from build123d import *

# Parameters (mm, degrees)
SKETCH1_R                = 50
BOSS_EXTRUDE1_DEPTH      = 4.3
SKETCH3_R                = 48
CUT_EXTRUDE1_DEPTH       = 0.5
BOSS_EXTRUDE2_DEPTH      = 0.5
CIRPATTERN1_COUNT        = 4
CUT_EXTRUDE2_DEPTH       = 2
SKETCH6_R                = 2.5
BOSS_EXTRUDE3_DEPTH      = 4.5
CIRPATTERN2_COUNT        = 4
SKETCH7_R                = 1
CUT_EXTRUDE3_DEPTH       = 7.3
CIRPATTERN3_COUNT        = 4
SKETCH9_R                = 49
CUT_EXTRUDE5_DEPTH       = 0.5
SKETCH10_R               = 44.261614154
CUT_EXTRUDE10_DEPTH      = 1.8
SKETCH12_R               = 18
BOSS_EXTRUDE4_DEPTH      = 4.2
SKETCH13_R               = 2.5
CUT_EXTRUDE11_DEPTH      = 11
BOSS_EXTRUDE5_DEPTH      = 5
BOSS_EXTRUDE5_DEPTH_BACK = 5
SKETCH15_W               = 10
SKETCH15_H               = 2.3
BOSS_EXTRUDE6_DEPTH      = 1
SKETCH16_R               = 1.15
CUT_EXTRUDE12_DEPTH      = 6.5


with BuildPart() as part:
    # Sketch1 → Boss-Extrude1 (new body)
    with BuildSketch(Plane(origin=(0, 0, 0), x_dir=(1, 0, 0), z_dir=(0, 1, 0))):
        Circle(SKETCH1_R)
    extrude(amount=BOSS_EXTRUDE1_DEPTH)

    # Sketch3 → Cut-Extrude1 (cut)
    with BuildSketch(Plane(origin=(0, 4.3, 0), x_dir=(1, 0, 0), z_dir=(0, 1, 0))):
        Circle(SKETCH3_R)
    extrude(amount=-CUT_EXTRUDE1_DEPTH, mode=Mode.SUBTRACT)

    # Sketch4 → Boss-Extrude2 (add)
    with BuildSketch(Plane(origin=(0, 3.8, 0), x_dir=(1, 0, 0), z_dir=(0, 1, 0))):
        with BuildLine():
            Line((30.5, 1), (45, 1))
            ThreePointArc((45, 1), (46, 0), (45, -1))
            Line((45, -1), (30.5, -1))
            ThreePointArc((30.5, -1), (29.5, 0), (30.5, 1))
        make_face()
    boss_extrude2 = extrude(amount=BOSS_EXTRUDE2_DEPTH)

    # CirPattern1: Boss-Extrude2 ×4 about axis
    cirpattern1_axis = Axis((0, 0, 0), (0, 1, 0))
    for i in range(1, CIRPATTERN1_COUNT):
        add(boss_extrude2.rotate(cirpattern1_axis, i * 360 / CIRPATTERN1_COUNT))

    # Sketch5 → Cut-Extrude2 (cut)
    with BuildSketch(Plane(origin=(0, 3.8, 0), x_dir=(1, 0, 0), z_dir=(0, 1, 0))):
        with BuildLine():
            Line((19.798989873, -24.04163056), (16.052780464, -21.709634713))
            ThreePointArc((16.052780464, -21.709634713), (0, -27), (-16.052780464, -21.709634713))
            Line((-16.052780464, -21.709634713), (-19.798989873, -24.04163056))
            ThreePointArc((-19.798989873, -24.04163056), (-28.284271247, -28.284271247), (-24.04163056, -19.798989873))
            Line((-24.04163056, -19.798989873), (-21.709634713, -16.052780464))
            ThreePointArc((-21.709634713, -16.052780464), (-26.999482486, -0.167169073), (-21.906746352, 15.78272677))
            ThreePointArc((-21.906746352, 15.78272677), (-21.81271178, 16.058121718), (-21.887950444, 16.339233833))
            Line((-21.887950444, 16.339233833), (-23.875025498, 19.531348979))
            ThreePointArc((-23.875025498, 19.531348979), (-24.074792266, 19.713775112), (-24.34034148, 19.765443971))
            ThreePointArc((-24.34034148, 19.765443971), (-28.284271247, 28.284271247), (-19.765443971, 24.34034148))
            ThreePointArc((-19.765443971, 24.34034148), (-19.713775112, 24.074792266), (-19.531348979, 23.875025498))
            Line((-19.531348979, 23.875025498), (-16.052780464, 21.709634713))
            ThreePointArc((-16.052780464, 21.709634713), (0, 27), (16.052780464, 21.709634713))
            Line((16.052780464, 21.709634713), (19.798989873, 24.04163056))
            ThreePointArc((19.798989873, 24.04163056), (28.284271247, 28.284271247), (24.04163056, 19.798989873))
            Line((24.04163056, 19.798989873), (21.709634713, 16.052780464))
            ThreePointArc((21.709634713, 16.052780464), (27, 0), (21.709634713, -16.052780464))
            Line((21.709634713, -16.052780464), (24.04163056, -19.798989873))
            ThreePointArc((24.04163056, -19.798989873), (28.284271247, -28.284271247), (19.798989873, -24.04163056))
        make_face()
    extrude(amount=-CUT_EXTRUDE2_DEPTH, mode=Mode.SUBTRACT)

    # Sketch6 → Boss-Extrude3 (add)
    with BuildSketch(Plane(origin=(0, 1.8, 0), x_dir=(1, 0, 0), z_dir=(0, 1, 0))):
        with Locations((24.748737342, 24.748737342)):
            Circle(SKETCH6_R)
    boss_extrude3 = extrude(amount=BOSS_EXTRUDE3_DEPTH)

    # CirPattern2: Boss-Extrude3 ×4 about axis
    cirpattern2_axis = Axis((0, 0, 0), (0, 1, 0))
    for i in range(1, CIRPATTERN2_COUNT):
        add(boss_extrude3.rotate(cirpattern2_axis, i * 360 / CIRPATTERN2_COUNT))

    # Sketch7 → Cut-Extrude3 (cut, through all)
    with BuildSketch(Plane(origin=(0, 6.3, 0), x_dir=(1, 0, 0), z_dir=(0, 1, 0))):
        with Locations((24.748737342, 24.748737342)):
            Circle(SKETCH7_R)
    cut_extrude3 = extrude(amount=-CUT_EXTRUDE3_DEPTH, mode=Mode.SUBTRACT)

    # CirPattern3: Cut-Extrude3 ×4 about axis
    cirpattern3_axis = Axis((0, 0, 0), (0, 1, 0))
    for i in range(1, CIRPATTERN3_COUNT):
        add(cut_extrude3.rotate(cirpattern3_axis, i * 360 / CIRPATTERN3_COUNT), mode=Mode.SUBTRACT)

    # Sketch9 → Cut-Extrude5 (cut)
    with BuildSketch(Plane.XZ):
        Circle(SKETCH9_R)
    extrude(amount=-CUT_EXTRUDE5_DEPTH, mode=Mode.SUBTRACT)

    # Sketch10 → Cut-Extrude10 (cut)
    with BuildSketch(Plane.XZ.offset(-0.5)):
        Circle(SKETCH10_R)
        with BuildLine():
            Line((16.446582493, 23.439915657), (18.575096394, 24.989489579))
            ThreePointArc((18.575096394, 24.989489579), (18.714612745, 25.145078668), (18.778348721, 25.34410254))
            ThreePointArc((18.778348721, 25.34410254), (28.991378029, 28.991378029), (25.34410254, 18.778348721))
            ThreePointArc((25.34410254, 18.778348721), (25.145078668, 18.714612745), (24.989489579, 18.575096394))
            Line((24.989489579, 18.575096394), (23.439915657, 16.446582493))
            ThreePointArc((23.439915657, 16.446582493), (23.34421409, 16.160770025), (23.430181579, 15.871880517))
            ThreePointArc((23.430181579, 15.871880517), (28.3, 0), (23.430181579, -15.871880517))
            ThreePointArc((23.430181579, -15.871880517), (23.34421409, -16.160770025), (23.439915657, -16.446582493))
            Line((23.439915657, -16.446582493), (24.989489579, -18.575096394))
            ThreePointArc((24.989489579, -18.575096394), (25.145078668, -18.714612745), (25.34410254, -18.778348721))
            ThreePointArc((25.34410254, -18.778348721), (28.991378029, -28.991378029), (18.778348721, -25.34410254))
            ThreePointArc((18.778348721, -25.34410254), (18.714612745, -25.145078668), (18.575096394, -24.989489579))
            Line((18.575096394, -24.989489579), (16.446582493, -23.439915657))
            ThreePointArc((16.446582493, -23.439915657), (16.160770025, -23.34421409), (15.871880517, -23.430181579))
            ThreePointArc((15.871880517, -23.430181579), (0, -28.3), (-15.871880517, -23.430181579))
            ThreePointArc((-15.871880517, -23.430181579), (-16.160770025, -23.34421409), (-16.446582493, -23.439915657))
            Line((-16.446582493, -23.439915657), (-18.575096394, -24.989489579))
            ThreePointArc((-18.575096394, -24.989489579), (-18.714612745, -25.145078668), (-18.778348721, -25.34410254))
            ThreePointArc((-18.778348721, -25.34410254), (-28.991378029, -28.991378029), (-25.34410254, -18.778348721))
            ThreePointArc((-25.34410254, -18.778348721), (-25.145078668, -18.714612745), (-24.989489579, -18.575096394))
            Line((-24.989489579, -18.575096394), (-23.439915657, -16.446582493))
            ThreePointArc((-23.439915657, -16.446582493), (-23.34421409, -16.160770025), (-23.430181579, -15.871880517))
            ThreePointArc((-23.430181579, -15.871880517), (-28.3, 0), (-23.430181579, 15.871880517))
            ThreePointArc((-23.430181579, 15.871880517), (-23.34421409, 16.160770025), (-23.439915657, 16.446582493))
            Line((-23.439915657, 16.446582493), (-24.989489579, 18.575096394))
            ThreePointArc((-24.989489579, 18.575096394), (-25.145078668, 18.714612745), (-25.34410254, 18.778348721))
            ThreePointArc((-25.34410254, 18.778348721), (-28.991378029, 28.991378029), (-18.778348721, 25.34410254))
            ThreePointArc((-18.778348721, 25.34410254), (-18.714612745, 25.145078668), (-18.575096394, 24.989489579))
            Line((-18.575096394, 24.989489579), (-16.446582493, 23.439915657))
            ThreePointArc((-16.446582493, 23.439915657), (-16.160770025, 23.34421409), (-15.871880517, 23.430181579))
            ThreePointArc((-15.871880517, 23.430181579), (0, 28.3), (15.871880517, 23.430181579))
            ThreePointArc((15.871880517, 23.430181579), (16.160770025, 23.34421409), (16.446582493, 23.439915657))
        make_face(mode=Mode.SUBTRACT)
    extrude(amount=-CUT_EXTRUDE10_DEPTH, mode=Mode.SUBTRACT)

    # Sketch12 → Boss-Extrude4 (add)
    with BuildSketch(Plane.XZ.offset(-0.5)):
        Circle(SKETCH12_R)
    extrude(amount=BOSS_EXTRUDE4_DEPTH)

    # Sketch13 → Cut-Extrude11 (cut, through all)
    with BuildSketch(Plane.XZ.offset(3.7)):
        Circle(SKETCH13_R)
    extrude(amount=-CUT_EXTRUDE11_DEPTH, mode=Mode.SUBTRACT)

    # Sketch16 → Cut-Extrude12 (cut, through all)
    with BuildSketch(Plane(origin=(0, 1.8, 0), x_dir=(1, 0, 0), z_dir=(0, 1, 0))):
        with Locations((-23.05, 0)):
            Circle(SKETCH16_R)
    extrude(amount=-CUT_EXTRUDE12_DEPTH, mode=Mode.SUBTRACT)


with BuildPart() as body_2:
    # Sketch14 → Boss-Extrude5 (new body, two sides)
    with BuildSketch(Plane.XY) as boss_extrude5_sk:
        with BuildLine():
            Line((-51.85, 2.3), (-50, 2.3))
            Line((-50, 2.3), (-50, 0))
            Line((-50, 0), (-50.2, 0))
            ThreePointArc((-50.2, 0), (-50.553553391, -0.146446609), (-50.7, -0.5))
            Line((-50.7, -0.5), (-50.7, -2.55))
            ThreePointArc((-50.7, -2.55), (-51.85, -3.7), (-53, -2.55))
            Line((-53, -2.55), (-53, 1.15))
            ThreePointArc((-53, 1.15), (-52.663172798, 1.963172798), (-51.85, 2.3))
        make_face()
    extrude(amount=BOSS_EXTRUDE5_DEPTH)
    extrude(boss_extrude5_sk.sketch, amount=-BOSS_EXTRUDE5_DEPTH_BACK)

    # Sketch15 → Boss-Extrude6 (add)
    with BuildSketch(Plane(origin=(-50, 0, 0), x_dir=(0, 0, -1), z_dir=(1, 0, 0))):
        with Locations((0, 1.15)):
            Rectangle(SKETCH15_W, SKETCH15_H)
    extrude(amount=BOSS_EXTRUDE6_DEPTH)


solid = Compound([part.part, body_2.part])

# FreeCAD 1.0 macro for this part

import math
import FreeCAD as App
import Part
import Sketcher

V = App.Vector


def add_polygon(sketch, points):
    """Adds a closed chain of lines whose ends are joined by coincident constraints."""
    first, n = sketch.GeometryCount, len(points)
    for a, b in zip(points, points[1:] + points[:1]):
        sketch.addGeometry(Part.LineSegment(App.Vector(*a, 0), App.Vector(*b, 0)), False)
    for i in range(n):
        sketch.addConstraint(Sketcher.Constraint("Coincident", first + i, 2, first + (i + 1) % n, 1))

doc = App.newDocument("Part")
body = doc.addObject("PartDesign::Body", "Body")

# Sketch on XZ plane
sketch1 = doc.addObject("Sketcher::SketchObject", "Sketch")
body.addObject(sketch1)
sketch1.AttachmentSupport = (doc.XZ_Plane, [""])
sketch1.MapMode = "FlatFace"
sketch1.addGeometry(Part.Circle(V(0, 0, 0), V(0, 0, 1), 50), False)
sketch1.addConstraint([
    Sketcher.Constraint("Coincident", 0, 3, -1, 1),
    Sketcher.Constraint("Diameter", 0, 100.0),
])
pad1 = doc.addObject("PartDesign::Pad", "Pad")
body.addObject(pad1)
pad1.Profile = sketch1
pad1.Length = 4.3
pad1.Reversed = True

# Sketch on XZ plane
sketch2 = doc.addObject("Sketcher::SketchObject", "Sketch001")
body.addObject(sketch2)
sketch2.AttachmentSupport = (doc.XZ_Plane, [""])
sketch2.MapMode = "FlatFace"
sketch2.AttachmentOffset = App.Placement(V(0, 0, -4.3), App.Rotation())
sketch2.addGeometry(Part.Circle(V(0, 0, 0), V(0, 0, 1), 48), False)
sketch2.addConstraint([
    Sketcher.Constraint("Coincident", 0, 3, -1, 1),
    Sketcher.Constraint("Diameter", 0, 96.0),
])
pocket1 = doc.addObject("PartDesign::Pocket", "Pocket")
body.addObject(pocket1)
pocket1.Profile = sketch2
pocket1.Length = 0.5
pocket1.Reversed = True

# Sketch on XZ plane
sketch3 = doc.addObject("Sketcher::SketchObject", "Sketch002")
body.addObject(sketch3)
sketch3.AttachmentSupport = (doc.XZ_Plane, [""])
sketch3.MapMode = "FlatFace"
sketch3.AttachmentOffset = App.Placement(V(0, 0, -3.8), App.Rotation())
sketch3.addGeometry([
    Part.LineSegment(V(45, -1, 0), V(30.5, -1, 0)),
    Part.ArcOfCircle(Part.Circle(V(30.5, 0, 0), V(0, 0, 1), 1), math.radians(90), math.radians(270)),
    Part.LineSegment(V(30.5, 1, 0), V(45, 1, 0)),
    Part.ArcOfCircle(Part.Circle(V(45, 0, 0), V(0, 0, 1), 1), math.radians(-90), math.radians(90)),
], False)
sketch3.addConstraint([
    Sketcher.Constraint("Tangent", 0, 2, 1, 2),
    Sketcher.Constraint("Tangent", 1, 1, 2, 1),
    Sketcher.Constraint("Tangent", 2, 2, 3, 2),
    Sketcher.Constraint("Tangent", 3, 1, 0, 1),
    Sketcher.Constraint("Horizontal", 0),
    Sketcher.Constraint("Horizontal", 2),
    Sketcher.Constraint("PointOnObject", 1, 3, -1),
    Sketcher.Constraint("Radius", 1, 1.0),
    Sketcher.Constraint("DistanceX", 0, 2, 0, 1, 14.5),
    Sketcher.Constraint("DistanceX", -1, 1, 3, 3, 45.0),
])
pad2 = doc.addObject("PartDesign::Pad", "Pad001")
body.addObject(pad2)
pad2.Profile = sketch3
pad2.Length = 0.5
pad2.Reversed = True
doc.recompute()

polarpattern = doc.addObject("PartDesign::PolarPattern", "PolarPattern")
body.addObject(polarpattern)
polarpattern.Originals = [pad2]
polarpattern.Axis = (doc.Y_Axis, [""])
polarpattern.Angle = 360
polarpattern.Occurrences = 4
body.Tip = polarpattern

# Sketch on XZ plane
sketch4 = doc.addObject("Sketcher::SketchObject", "Sketch003")
body.addObject(sketch4)
sketch4.AttachmentSupport = (doc.XZ_Plane, [""])
sketch4.MapMode = "FlatFace"
sketch4.AttachmentOffset = App.Placement(V(0, 0, -3.8), App.Rotation())
sketch4.addGeometry([
    Part.LineSegment(V(16.05278, 21.709635, 0), V(19.79899, 24.041631, 0)),  # 0
    Part.ArcOfCircle(Part.Circle(V(24.748737, 24.748737, 0), V(0, 0, 1), 5), math.radians(-98.130102), math.radians(188.130102)),  # 1
    Part.LineSegment(V(24.041631, 19.79899, 0), V(21.709635, 16.05278, 0)),  # 2
    Part.ArcOfCircle(Part.Circle(V(0, 0, 0), V(0, 0, 1), 27), math.radians(-36.480376), math.radians(36.480376)),  # 3
    Part.LineSegment(V(21.709635, -16.05278, 0), V(24.041631, -19.79899, 0)),  # 4
    Part.ArcOfCircle(Part.Circle(V(24.748737, -24.748737, 0), V(0, 0, 1), 5), math.radians(171.869898), math.radians(458.130102)),  # 5
    Part.LineSegment(V(19.79899, -24.041631, 0), V(16.05278, -21.709635, 0)),  # 6
    Part.ArcOfCircle(Part.Circle(V(0, 0, 0), V(0, 0, 1), 27), math.radians(-126.480376), math.radians(-53.519624)),  # 7
    Part.LineSegment(V(-16.05278, -21.709635, 0), V(-19.531349, -23.875025, 0)),  # 8
    Part.ArcOfCircle(Part.Circle(V(-19.267115, -24.299502, 0), V(0, 0, 1), 0.5), math.radians(121.902049), math.radians(184.685091)),  # 9
    Part.ArcOfCircle(Part.Circle(V(-24.748737, -24.748737, 0), V(0, 0, 1), 5), math.radians(85.314909), math.radians(364.685091)),  # 10
    Part.ArcOfCircle(Part.Circle(V(-24.299502, -19.267115, 0), V(0, 0, 1), 0.5), math.radians(-94.685091), math.radians(-31.902049)),  # 11
    Part.LineSegment(V(-23.875025, -19.531349, 0), V(-21.88795, -16.339234, 0)),  # 12
    Part.ArcOfCircle(Part.Circle(V(-22.312427, -16.074999, 0), V(0, 0, 1), 0.5), math.radians(-31.902049), math.radians(35.770884)),  # 13
    Part.ArcOfCircle(Part.Circle(V(0, 0, 0), V(0, 0, 1), 27), math.radians(143.519624), math.radians(215.770884)),  # 14
    Part.LineSegment(V(-21.709635, 16.05278, 0), V(-24.041631, 19.79899, 0)),  # 15
    Part.ArcOfCircle(Part.Circle(V(-24.748737, 24.748737, 0), V(0, 0, 1), 5), math.radians(-8.130102), math.radians(278.130102)),  # 16
    Part.LineSegment(V(-19.79899, 24.041631, 0), V(-16.05278, 21.709635, 0)),  # 17
    Part.ArcOfCircle(Part.Circle(V(0, 0, 0), V(0, 0, 1), 27), math.radians(53.519624), math.radians(126.480376)),  # 18
], False)
sketch4.addConstraint([
    Sketcher.Constraint("Coincident", 0, 2, 1, 2),
    Sketcher.Constraint("Coincident", 1, 1, 2, 1),
    Sketcher.Constraint("Coincident", 2, 2, 3, 2),
    Sketcher.Constraint("Coincident", 3, 1, 4, 1),
    Sketcher.Constraint("Coincident", 4, 2, 5, 2),
    Sketcher.Constraint("Coincident", 5, 1, 6, 1),
    Sketcher.Constraint("Coincident", 6, 2, 7, 2),
    Sketcher.Constraint("Coincident", 7, 1, 8, 1),
    Sketcher.Constraint("Coincident", 8, 2, 9, 1),
    Sketcher.Constraint("Coincident", 9, 2, 10, 2),
    Sketcher.Constraint("Coincident", 10, 1, 11, 1),
    Sketcher.Constraint("Coincident", 11, 2, 12, 1),
    Sketcher.Constraint("Coincident", 12, 2, 13, 1),
    Sketcher.Constraint("Coincident", 13, 2, 14, 2),
    Sketcher.Constraint("Coincident", 14, 1, 15, 1),
    Sketcher.Constraint("Coincident", 15, 2, 16, 2),
    Sketcher.Constraint("Coincident", 16, 1, 17, 1),
    Sketcher.Constraint("Coincident", 17, 2, 18, 2),
    Sketcher.Constraint("Coincident", 18, 1, 0, 1),
    Sketcher.Constraint("Coincident", 3, 3, -1, 1),
    Sketcher.Constraint("Coincident", 7, 3, -1, 1),
    Sketcher.Constraint("Coincident", 14, 3, -1, 1),
    Sketcher.Constraint("Coincident", 18, 3, -1, 1),
    Sketcher.Constraint("Radius", 1, 5.0),
    Sketcher.Constraint("Radius", 3, 27.0),
    Sketcher.Constraint("Radius", 5, 5.0),
    Sketcher.Constraint("Radius", 7, 27.0),
    Sketcher.Constraint("Radius", 10, 5.0),
    Sketcher.Constraint("Radius", 14, 27.0),
    Sketcher.Constraint("Radius", 16, 5.0),
    Sketcher.Constraint("Radius", 18, 27.0),
    Sketcher.Constraint("Radius", 9, 0.5),
    Sketcher.Constraint("Radius", 11, 0.5),
    Sketcher.Constraint("Radius", 13, 0.5),
    Sketcher.Constraint("DistanceY", 13, 3, -1, 1, 16.074999),
    Sketcher.Constraint("DistanceY", 9, 3, -1, 1, 24.299502),
    Sketcher.Constraint("DistanceX", 11, 3, -1, 1, 24.299502),
    Sketcher.Constraint("DistanceX", 11, 2, 13, 3, 1.562599),
    Sketcher.Constraint("DistanceX", 12, 2, 8, 2, 2.356601),
    Sketcher.Constraint("Distance", 0, 4.412742),
    Sketcher.Constraint("Distance", 2, 4.412742),
    Sketcher.Constraint("Distance", 4, 4.412742),
    Sketcher.Constraint("Distance", 6, 4.412742),
    Sketcher.Constraint("Distance", 8, 4.097482),
    Sketcher.Constraint("Distance", 15, 4.412742),
    Sketcher.Constraint("Distance", 17, 4.412742),
    Sketcher.Constraint("DistanceX", -1, 1, 0, 2, 19.79899),
    Sketcher.Constraint("DistanceY", -1, 1, 0, 2, 24.041631),
    Sketcher.Constraint("DistanceX", -1, 1, 1, 1, 24.041631),
    Sketcher.Constraint("DistanceY", -1, 1, 1, 1, 19.79899),
    Sketcher.Constraint("DistanceY", 3, 1, -1, 1, 16.05278),
    Sketcher.Constraint("DistanceX", -1, 1, 4, 2, 24.041631),
    Sketcher.Constraint("DistanceX", -1, 1, 5, 1, 19.79899),
    Sketcher.Constraint("DistanceY", 5, 1, -1, 1, 24.041631),
    Sketcher.Constraint("DistanceX", 7, 1, -1, 1, 16.05278),
    Sketcher.Constraint("DistanceX", 8, 2, -1, 1, 19.531349),
    Sketcher.Constraint("DistanceY", 9, 2, -1, 1, 24.340341),
    Sketcher.Constraint("DistanceX", 10, 1, -1, 1, 24.340341),
    Sketcher.Constraint("DistanceY", 11, 2, -1, 1, 19.531349),
    Sketcher.Constraint("DistanceY", -1, 1, 14, 1, 16.05278),
    Sketcher.Constraint("DistanceX", 15, 2, -1, 1, 24.041631),
    Sketcher.Constraint("DistanceX", 16, 1, -1, 1, 19.79899),
    Sketcher.Constraint("DistanceY", -1, 1, 16, 1, 24.041631),
    Sketcher.Constraint("DistanceX", 13, 3, 13, 2, 0.40568),
])
pocket2 = doc.addObject("PartDesign::Pocket", "Pocket001")
body.addObject(pocket2)
pocket2.Profile = sketch4
pocket2.Length = 2
pocket2.Reversed = True

# Sketch on XZ plane
sketch5 = doc.addObject("Sketcher::SketchObject", "Sketch004")
body.addObject(sketch5)
sketch5.AttachmentSupport = (doc.XZ_Plane, [""])
sketch5.MapMode = "FlatFace"
sketch5.AttachmentOffset = App.Placement(V(0, 0, -1.8), App.Rotation())
sketch5.addGeometry(Part.Circle(V(24.7, -24.7, 0), V(0, 0, 1), 2.5), False)
sketch5.addConstraint([
    Sketcher.Constraint("Diameter", 0, 5.0),
    Sketcher.Constraint("DistanceX", -1, 1, 0, 3, 24.748737),
    Sketcher.Constraint("DistanceY", 0, 3, -1, 1, 24.748737),
])
pad3 = doc.addObject("PartDesign::Pad", "Pad002")
body.addObject(pad3)
pad3.Profile = sketch5
pad3.Length = 4.5
pad3.Reversed = True
doc.recompute()

polarpattern2 = doc.addObject("PartDesign::PolarPattern", "PolarPattern001")
body.addObject(polarpattern2)
polarpattern2.Originals = [pad3]
polarpattern2.Axis = (doc.Y_Axis, [""])
polarpattern2.Angle = 360
polarpattern2.Occurrences = 4
body.Tip = polarpattern2

# Sketch on XZ plane
sketch6 = doc.addObject("Sketcher::SketchObject", "Sketch005")
body.addObject(sketch6)
sketch6.AttachmentSupport = (doc.XZ_Plane, [""])
sketch6.MapMode = "FlatFace"
sketch6.AttachmentOffset = App.Placement(V(0, 0, -6.3), App.Rotation())
sketch6.addGeometry(Part.Circle(V(24.7, -24.7, 0), V(0, 0, 1), 1), False)
sketch6.addConstraint([
    Sketcher.Constraint("Diameter", 0, 2.0),
    Sketcher.Constraint("DistanceX", -1, 1, 0, 3, 24.748737),
    Sketcher.Constraint("DistanceY", 0, 3, -1, 1, 24.748737),
])
pocket3 = doc.addObject("PartDesign::Pocket", "Pocket002")
body.addObject(pocket3)
pocket3.Profile = sketch6
pocket3.Type = "ThroughAll"
pocket3.Reversed = True
doc.recompute()

polarpattern3 = doc.addObject("PartDesign::PolarPattern", "PolarPattern002")
body.addObject(polarpattern3)
polarpattern3.Originals = [pocket3]
polarpattern3.Axis = (doc.Y_Axis, [""])
polarpattern3.Angle = 360
polarpattern3.Occurrences = 4
body.Tip = polarpattern3

# Sketch on XZ plane
sketch7 = doc.addObject("Sketcher::SketchObject", "Sketch006")
body.addObject(sketch7)
sketch7.AttachmentSupport = (doc.XZ_Plane, [""])
sketch7.MapMode = "FlatFace"
sketch7.addGeometry(Part.Circle(V(0, 0, 0), V(0, 0, 1), 49), False)
sketch7.addConstraint([
    Sketcher.Constraint("Coincident", 0, 3, -1, 1),
    Sketcher.Constraint("Diameter", 0, 98.0),
])
pocket4 = doc.addObject("PartDesign::Pocket", "Pocket003")
body.addObject(pocket4)
pocket4.Profile = sketch7
pocket4.Length = 0.5

# Sketch on XZ plane
sketch8 = doc.addObject("Sketcher::SketchObject", "Sketch007")
body.addObject(sketch8)
sketch8.AttachmentSupport = (doc.XZ_Plane, [""])
sketch8.MapMode = "FlatFace"
sketch8.AttachmentOffset = App.Placement(V(0, 0, -0.5), App.Rotation())
sketch8.addGeometry([
    Part.Circle(V(0, 0, 0), V(0, 0, 1), 44.26),  # 0
    Part.ArcOfCircle(Part.Circle(V(16.15, 23.84, 0), V(0, 0, 1), 0.5), math.radians(-124), math.radians(-54)),  # 1
    Part.LineSegment(V(16.45, 23.44, 0), V(18.58, 24.99, 0)),  # 2
    Part.ArcOfCircle(Part.Circle(V(18.28, 25.39, 0), V(0, 0, 1), 0.5), math.radians(-54), math.radians(-6)),  # 3
    Part.ArcOfCircle(Part.Circle(V(24.75, 24.75, 0), V(0, 0, 1), 6), math.radians(-84), math.radians(174)),  # 4
    Part.ArcOfCircle(Part.Circle(V(25.39, 18.28, 0), V(0, 0, 1), 0.5), math.radians(96), math.radians(144)),  # 5
    Part.LineSegment(V(24.99, 18.58, 0), V(23.44, 16.45, 0)),  # 6
    Part.ArcOfCircle(Part.Circle(V(23.84, 16.15, 0), V(0, 0, 1), 0.5), math.radians(144), math.radians(214)),  # 7
    Part.ArcOfCircle(Part.Circle(V(0, 0, 0), V(0, 0, 1), 28.3), math.radians(-34), math.radians(34)),  # 8
    Part.ArcOfCircle(Part.Circle(V(23.84, -16.15, 0), V(0, 0, 1), 0.5), math.radians(146), math.radians(216)),  # 9
    Part.LineSegment(V(23.44, -16.45, 0), V(24.99, -18.58, 0)),  # 10
    Part.ArcOfCircle(Part.Circle(V(25.39, -18.28, 0), V(0, 0, 1), 0.5), math.radians(-144), math.radians(-96)),  # 11
    Part.ArcOfCircle(Part.Circle(V(24.75, -24.75, 0), V(0, 0, 1), 6), math.radians(-174), math.radians(84)),  # 12
    Part.ArcOfCircle(Part.Circle(V(18.28, -25.39, 0), V(0, 0, 1), 0.5), math.radians(6), math.radians(54)),  # 13
    Part.LineSegment(V(18.58, -24.99, 0), V(16.45, -23.44, 0)),  # 14
    Part.ArcOfCircle(Part.Circle(V(16.15, -23.84, 0), V(0, 0, 1), 0.5), math.radians(54), math.radians(124)),  # 15
    Part.ArcOfCircle(Part.Circle(V(0, 0, 0), V(0, 0, 1), 28.3), math.radians(-124), math.radians(-56)),  # 16
    Part.ArcOfCircle(Part.Circle(V(-16.15, -23.84, 0), V(0, 0, 1), 0.5), math.radians(56), math.radians(126)),  # 17
    Part.LineSegment(V(-16.45, -23.44, 0), V(-18.58, -24.99, 0)),  # 18
    Part.ArcOfCircle(Part.Circle(V(-18.28, -25.39, 0), V(0, 0, 1), 0.5), math.radians(126), math.radians(174)),  # 19
    Part.ArcOfCircle(Part.Circle(V(-24.75, -24.75, 0), V(0, 0, 1), 6), math.radians(96), math.radians(354)),  # 20
    Part.ArcOfCircle(Part.Circle(V(-25.39, -18.28, 0), V(0, 0, 1), 0.5), math.radians(-84), math.radians(-36)),  # 21
    Part.LineSegment(V(-24.99, -18.58, 0), V(-23.44, -16.45, 0)),  # 22
    Part.ArcOfCircle(Part.Circle(V(-23.84, -16.15, 0), V(0, 0, 1), 0.5), math.radians(-36), math.radians(34)),  # 23
    Part.ArcOfCircle(Part.Circle(V(0, 0, 0), V(0, 0, 1), 28.3), math.radians(146), math.radians(214)),  # 24
    Part.ArcOfCircle(Part.Circle(V(-23.84, 16.15, 0), V(0, 0, 1), 0.5), math.radians(-34), math.radians(36)),  # 25
    Part.LineSegment(V(-23.44, 16.45, 0), V(-24.99, 18.58, 0)),  # 26
    Part.ArcOfCircle(Part.Circle(V(-25.39, 18.28, 0), V(0, 0, 1), 0.5), math.radians(36), math.radians(84)),  # 27
    Part.ArcOfCircle(Part.Circle(V(-24.75, 24.75, 0), V(0, 0, 1), 6), math.radians(6), math.radians(264)),  # 28
    Part.ArcOfCircle(Part.Circle(V(-18.28, 25.39, 0), V(0, 0, 1), 0.5), math.radians(-174), math.radians(-126)),  # 29
    Part.LineSegment(V(-18.58, 24.99, 0), V(-16.45, 23.44, 0)),  # 30
    Part.ArcOfCircle(Part.Circle(V(-16.15, 23.84, 0), V(0, 0, 1), 0.5), math.radians(-126), math.radians(-56)),  # 31
    Part.ArcOfCircle(Part.Circle(V(0, 0, 0), V(0, 0, 1), 28.3), math.radians(56), math.radians(124)),  # 32
], False)
sketch8.addConstraint([
    Sketcher.Constraint("Tangent", 1, 2, 2, 1),
    Sketcher.Constraint("Tangent", 2, 2, 3, 1),
    Sketcher.Constraint("Tangent", 3, 2, 4, 2),
    Sketcher.Constraint("Tangent", 4, 1, 5, 1),
    Sketcher.Constraint("Tangent", 5, 2, 6, 1),
    Sketcher.Constraint("Tangent", 6, 2, 7, 1),
    Sketcher.Constraint("Tangent", 7, 2, 8, 2),
    Sketcher.Constraint("Tangent", 8, 1, 9, 1),
    Sketcher.Constraint("Tangent", 9, 2, 10, 1),
    Sketcher.Constraint("Tangent", 10, 2, 11, 1),
    Sketcher.Constraint("Tangent", 11, 2, 12, 2),
    Sketcher.Constraint("Tangent", 12, 1, 13, 1),
    Sketcher.Constraint("Tangent", 13, 2, 14, 1),
    Sketcher.Constraint("Tangent", 14, 2, 15, 1),
    Sketcher.Constraint("Tangent", 15, 2, 16, 2),
    Sketcher.Constraint("Tangent", 16, 1, 17, 1),
    Sketcher.Constraint("Tangent", 17, 2, 18, 1),
    Sketcher.Constraint("Tangent", 18, 2, 19, 1),
    Sketcher.Constraint("Tangent", 19, 2, 20, 2),
    Sketcher.Constraint("Tangent", 20, 1, 21, 1),
    Sketcher.Constraint("Tangent", 21, 2, 22, 1),
    Sketcher.Constraint("Tangent", 22, 2, 23, 1),
    Sketcher.Constraint("Tangent", 23, 2, 24, 2),
    Sketcher.Constraint("Tangent", 24, 1, 25, 1),
    Sketcher.Constraint("Tangent", 25, 2, 26, 1),
    Sketcher.Constraint("Tangent", 26, 2, 27, 1),
    Sketcher.Constraint("Tangent", 27, 2, 28, 2),
    Sketcher.Constraint("Tangent", 28, 1, 29, 1),
    Sketcher.Constraint("Tangent", 29, 2, 30, 1),
    Sketcher.Constraint("Tangent", 30, 2, 31, 1),
    Sketcher.Constraint("Tangent", 31, 2, 32, 2),
    Sketcher.Constraint("Tangent", 32, 1, 1, 1),
    Sketcher.Constraint("Coincident", 0, 3, -1, 1),
    Sketcher.Constraint("Coincident", 8, 3, -1, 1),
    Sketcher.Constraint("Coincident", 16, 3, -1, 1),
    Sketcher.Constraint("Coincident", 24, 3, -1, 1),
    Sketcher.Constraint("Coincident", 32, 3, -1, 1),
    Sketcher.Constraint("Equal", 1, 3),
    Sketcher.Constraint("Equal", 3, 5),
    Sketcher.Constraint("Equal", 5, 7),
    Sketcher.Constraint("Equal", 7, 9),
    Sketcher.Constraint("Equal", 9, 11),
    Sketcher.Constraint("Equal", 4, 12),
    Sketcher.Constraint("Equal", 11, 13),
    Sketcher.Constraint("Equal", 13, 15),
    Sketcher.Constraint("Equal", 8, 16),
    Sketcher.Constraint("Equal", 15, 17),
    Sketcher.Constraint("Equal", 17, 19),
    Sketcher.Constraint("Equal", 12, 20),
    Sketcher.Constraint("Equal", 19, 21),
    Sketcher.Constraint("Equal", 21, 23),
    Sketcher.Constraint("Equal", 16, 24),
    Sketcher.Constraint("Equal", 23, 25),
    Sketcher.Constraint("Equal", 25, 27),
    Sketcher.Constraint("Equal", 20, 28),
    Sketcher.Constraint("Equal", 27, 29),
    Sketcher.Constraint("Equal", 29, 31),
    Sketcher.Constraint("Equal", 24, 32),
    Sketcher.Constraint("Symmetric", 3, 3, 19, 3, -1, 1),
    Sketcher.Constraint("Symmetric", 5, 3, 21, 3, -1, 1),
    Sketcher.Constraint("Symmetric", 11, 3, 27, 3, -1, 1),
    Sketcher.Constraint("Symmetric", 13, 3, 29, 3, -1, 1),
    Sketcher.Constraint("Symmetric", 13, 3, 19, 3, -2),
    Sketcher.Constraint("Symmetric", 11, 3, 21, 3, -2),
    Sketcher.Constraint("Perpendicular", 2, 10),
    Sketcher.Constraint("Perpendicular", 6, 14),
    Sketcher.Constraint("Perpendicular", 10, 18),
    Sketcher.Constraint("Perpendicular", 14, 22),
    Sketcher.Constraint("Perpendicular", 18, 26),
    Sketcher.Constraint("Perpendicular", 22, 30),
    Sketcher.Constraint("Horizontal", 15, 3, 17, 3),
    Sketcher.Constraint("Equal", 2, 6),
    Sketcher.Constraint("Radius", 4, 6.0),
    Sketcher.Constraint("Radius", 1, 0.5),
    Sketcher.Constraint("Radius", 8, 28.3),
    Sketcher.Constraint("Diameter", 0, 88.523228),
    Sketcher.Constraint("DistanceX", 3, 3, 5, 3, 7.1129),
    Sketcher.Constraint("DistanceY", 5, 3, 3, 3, 7.1129),
    Sketcher.Constraint("DistanceY", 1, 2, 3, 3, 1.953801),
    Sketcher.Constraint("DistanceY", 7, 2, 6, 2, 0.574702),
])
pocket5 = doc.addObject("PartDesign::Pocket", "Pocket004")
body.addObject(pocket5)
pocket5.Profile = sketch8
pocket5.Length = 1.8

# Sketch on XZ plane
sketch9 = doc.addObject("Sketcher::SketchObject", "Sketch008")
body.addObject(sketch9)
sketch9.AttachmentSupport = (doc.XZ_Plane, [""])
sketch9.MapMode = "FlatFace"
sketch9.AttachmentOffset = App.Placement(V(0, 0, -0.5), App.Rotation())
sketch9.addGeometry(Part.Circle(V(0, 0, 0), V(0, 0, 1), 18), False)
sketch9.addConstraint([
    Sketcher.Constraint("Coincident", 0, 3, -1, 1),
    Sketcher.Constraint("Diameter", 0, 36.0),
])
pad4 = doc.addObject("PartDesign::Pad", "Pad003")
body.addObject(pad4)
pad4.Profile = sketch9
pad4.Length = 4.2

# Sketch on XZ plane
sketch10 = doc.addObject("Sketcher::SketchObject", "Sketch009")
body.addObject(sketch10)
sketch10.AttachmentSupport = (doc.XZ_Plane, [""])
sketch10.MapMode = "FlatFace"
sketch10.AttachmentOffset = App.Placement(V(0, 0, 3.7), App.Rotation())
sketch10.addGeometry(Part.Circle(V(0, 0, 0), V(0, 0, 1), 2.5), False)
sketch10.addConstraint([
    Sketcher.Constraint("Coincident", 0, 3, -1, 1),
    Sketcher.Constraint("Diameter", 0, 5.0),
])
pocket6 = doc.addObject("PartDesign::Pocket", "Pocket005")
body.addObject(pocket6)
pocket6.Profile = sketch10
pocket6.Type = "ThroughAll"

# Sketch on XZ plane
sketch11 = doc.addObject("Sketcher::SketchObject", "Sketch010")
body.addObject(sketch11)
sketch11.AttachmentSupport = (doc.XZ_Plane, [""])
sketch11.MapMode = "FlatFace"
sketch11.AttachmentOffset = App.Placement(V(0, 0, -1.8), App.Rotation())
sketch11.addGeometry(Part.Circle(V(-23.1, 0, 0), V(0, 0, 1), 1.1), False)
sketch11.addConstraint([
    Sketcher.Constraint("PointOnObject", 0, 3, -1),
    Sketcher.Constraint("Diameter", 0, 2.3),
    Sketcher.Constraint("DistanceX", 0, 3, -1, 1, 23.05),
])
pocket7 = doc.addObject("PartDesign::Pocket", "Pocket006")
body.addObject(pocket7)
pocket7.Profile = sketch11
pocket7.Type = "ThroughAll"
pocket7.Reversed = True
body2 = doc.addObject("PartDesign::Body", "Body001")

# Sketch on XY plane
sketch12 = doc.addObject("Sketcher::SketchObject", "Sketch011")
body2.addObject(sketch12)
sketch12.AttachmentSupport = (doc.getObject("XY_Plane001"), [""])
sketch12.MapMode = "FlatFace"
sketch12.addGeometry([
    Part.LineSegment(V(-50, 2.3, 0), V(-51.85, 2.3, 0)),  # 0
    Part.ArcOfCircle(Part.Circle(V(-51.85, 1.15, 0), V(0, 0, 1), 1.15), math.radians(90), math.radians(180)),  # 1
    Part.LineSegment(V(-53, 1.15, 0), V(-53, -2.55, 0)),  # 2
    Part.ArcOfCircle(Part.Circle(V(-51.85, -2.55, 0), V(0, 0, 1), 1.15), math.radians(180), math.radians(360)),  # 3
    Part.LineSegment(V(-50.7, -2.55, 0), V(-50.7, -0.5, 0)),  # 4
    Part.ArcOfCircle(Part.Circle(V(-50.2, -0.5, 0), V(0, 0, 1), 0.5), math.radians(90), math.radians(180)),  # 5
    Part.LineSegment(V(-50.2, 0, 0), V(-50, 0, 0)),  # 6
    Part.LineSegment(V(-50, 0, 0), V(-50, 2.3, 0)),  # 7
], False)
sketch12.addConstraint([
    Sketcher.Constraint("Tangent", 0, 2, 1, 1),
    Sketcher.Constraint("Tangent", 1, 2, 2, 1),
    Sketcher.Constraint("Tangent", 2, 2, 3, 1),
    Sketcher.Constraint("Tangent", 3, 2, 4, 1),
    Sketcher.Constraint("Tangent", 4, 2, 5, 2),
    Sketcher.Constraint("Tangent", 5, 1, 6, 1),
    Sketcher.Constraint("Coincident", 6, 2, 7, 1),
    Sketcher.Constraint("Coincident", 7, 2, 0, 1),
    Sketcher.Constraint("Horizontal", 0),
    Sketcher.Constraint("Vertical", 2),
    Sketcher.Constraint("Vertical", 4),
    Sketcher.Constraint("Horizontal", 6),
    Sketcher.Constraint("Vertical", 7),
    Sketcher.Constraint("Equal", 1, 3),
    Sketcher.Constraint("PointOnObject", 5, 1, -1),
    Sketcher.Constraint("Radius", 5, 0.5),
    Sketcher.Constraint("Radius", 1, 1.15),
    Sketcher.Constraint("DistanceX", 6, 1, 6, 2, 0.2),
    Sketcher.Constraint("DistanceY", 2, 2, 2, 1, 3.7),
    Sketcher.Constraint("DistanceY", 7, 1, 7, 2, 2.3),
    Sketcher.Constraint("DistanceX", 1, 2, -1, 1, 53.0),
])
pad5 = doc.addObject("PartDesign::Pad", "Pad004")
body2.addObject(pad5)
pad5.Profile = sketch12
pad5.Type = "TwoLengths"
pad5.Length = 5
pad5.Length2 = 5

# Sketch on YZ plane
sketch13 = doc.addObject("Sketcher::SketchObject", "Sketch012")
body2.addObject(sketch13)
sketch13.AttachmentSupport = (doc.getObject("YZ_Plane001"), [""])
sketch13.MapMode = "FlatFace"
sketch13.AttachmentOffset = App.Placement(V(0, 0, -50), App.Rotation())
add_polygon(sketch13, [(2.3, 5), (0, 5), (0, -5), (2.3, -5)])  # lines 0-3
sketch13.addConstraint([
    Sketcher.Constraint("Horizontal", 0),
    Sketcher.Constraint("Vertical", 1),
    Sketcher.Constraint("Horizontal", 2),
    Sketcher.Constraint("Vertical", 3),
    Sketcher.Constraint("Symmetric", 0, 2, 1, 2, -1, 1),
    Sketcher.Constraint("DistanceY", 1, 2, 1, 1, 10.0),
    Sketcher.Constraint("DistanceX", 0, 2, 0, 1, 2.3),
])
pad6 = doc.addObject("PartDesign::Pad", "Pad005")
body2.addObject(pad6)
pad6.Profile = sketch13
pad6.Length = 1

doc.recompute()
